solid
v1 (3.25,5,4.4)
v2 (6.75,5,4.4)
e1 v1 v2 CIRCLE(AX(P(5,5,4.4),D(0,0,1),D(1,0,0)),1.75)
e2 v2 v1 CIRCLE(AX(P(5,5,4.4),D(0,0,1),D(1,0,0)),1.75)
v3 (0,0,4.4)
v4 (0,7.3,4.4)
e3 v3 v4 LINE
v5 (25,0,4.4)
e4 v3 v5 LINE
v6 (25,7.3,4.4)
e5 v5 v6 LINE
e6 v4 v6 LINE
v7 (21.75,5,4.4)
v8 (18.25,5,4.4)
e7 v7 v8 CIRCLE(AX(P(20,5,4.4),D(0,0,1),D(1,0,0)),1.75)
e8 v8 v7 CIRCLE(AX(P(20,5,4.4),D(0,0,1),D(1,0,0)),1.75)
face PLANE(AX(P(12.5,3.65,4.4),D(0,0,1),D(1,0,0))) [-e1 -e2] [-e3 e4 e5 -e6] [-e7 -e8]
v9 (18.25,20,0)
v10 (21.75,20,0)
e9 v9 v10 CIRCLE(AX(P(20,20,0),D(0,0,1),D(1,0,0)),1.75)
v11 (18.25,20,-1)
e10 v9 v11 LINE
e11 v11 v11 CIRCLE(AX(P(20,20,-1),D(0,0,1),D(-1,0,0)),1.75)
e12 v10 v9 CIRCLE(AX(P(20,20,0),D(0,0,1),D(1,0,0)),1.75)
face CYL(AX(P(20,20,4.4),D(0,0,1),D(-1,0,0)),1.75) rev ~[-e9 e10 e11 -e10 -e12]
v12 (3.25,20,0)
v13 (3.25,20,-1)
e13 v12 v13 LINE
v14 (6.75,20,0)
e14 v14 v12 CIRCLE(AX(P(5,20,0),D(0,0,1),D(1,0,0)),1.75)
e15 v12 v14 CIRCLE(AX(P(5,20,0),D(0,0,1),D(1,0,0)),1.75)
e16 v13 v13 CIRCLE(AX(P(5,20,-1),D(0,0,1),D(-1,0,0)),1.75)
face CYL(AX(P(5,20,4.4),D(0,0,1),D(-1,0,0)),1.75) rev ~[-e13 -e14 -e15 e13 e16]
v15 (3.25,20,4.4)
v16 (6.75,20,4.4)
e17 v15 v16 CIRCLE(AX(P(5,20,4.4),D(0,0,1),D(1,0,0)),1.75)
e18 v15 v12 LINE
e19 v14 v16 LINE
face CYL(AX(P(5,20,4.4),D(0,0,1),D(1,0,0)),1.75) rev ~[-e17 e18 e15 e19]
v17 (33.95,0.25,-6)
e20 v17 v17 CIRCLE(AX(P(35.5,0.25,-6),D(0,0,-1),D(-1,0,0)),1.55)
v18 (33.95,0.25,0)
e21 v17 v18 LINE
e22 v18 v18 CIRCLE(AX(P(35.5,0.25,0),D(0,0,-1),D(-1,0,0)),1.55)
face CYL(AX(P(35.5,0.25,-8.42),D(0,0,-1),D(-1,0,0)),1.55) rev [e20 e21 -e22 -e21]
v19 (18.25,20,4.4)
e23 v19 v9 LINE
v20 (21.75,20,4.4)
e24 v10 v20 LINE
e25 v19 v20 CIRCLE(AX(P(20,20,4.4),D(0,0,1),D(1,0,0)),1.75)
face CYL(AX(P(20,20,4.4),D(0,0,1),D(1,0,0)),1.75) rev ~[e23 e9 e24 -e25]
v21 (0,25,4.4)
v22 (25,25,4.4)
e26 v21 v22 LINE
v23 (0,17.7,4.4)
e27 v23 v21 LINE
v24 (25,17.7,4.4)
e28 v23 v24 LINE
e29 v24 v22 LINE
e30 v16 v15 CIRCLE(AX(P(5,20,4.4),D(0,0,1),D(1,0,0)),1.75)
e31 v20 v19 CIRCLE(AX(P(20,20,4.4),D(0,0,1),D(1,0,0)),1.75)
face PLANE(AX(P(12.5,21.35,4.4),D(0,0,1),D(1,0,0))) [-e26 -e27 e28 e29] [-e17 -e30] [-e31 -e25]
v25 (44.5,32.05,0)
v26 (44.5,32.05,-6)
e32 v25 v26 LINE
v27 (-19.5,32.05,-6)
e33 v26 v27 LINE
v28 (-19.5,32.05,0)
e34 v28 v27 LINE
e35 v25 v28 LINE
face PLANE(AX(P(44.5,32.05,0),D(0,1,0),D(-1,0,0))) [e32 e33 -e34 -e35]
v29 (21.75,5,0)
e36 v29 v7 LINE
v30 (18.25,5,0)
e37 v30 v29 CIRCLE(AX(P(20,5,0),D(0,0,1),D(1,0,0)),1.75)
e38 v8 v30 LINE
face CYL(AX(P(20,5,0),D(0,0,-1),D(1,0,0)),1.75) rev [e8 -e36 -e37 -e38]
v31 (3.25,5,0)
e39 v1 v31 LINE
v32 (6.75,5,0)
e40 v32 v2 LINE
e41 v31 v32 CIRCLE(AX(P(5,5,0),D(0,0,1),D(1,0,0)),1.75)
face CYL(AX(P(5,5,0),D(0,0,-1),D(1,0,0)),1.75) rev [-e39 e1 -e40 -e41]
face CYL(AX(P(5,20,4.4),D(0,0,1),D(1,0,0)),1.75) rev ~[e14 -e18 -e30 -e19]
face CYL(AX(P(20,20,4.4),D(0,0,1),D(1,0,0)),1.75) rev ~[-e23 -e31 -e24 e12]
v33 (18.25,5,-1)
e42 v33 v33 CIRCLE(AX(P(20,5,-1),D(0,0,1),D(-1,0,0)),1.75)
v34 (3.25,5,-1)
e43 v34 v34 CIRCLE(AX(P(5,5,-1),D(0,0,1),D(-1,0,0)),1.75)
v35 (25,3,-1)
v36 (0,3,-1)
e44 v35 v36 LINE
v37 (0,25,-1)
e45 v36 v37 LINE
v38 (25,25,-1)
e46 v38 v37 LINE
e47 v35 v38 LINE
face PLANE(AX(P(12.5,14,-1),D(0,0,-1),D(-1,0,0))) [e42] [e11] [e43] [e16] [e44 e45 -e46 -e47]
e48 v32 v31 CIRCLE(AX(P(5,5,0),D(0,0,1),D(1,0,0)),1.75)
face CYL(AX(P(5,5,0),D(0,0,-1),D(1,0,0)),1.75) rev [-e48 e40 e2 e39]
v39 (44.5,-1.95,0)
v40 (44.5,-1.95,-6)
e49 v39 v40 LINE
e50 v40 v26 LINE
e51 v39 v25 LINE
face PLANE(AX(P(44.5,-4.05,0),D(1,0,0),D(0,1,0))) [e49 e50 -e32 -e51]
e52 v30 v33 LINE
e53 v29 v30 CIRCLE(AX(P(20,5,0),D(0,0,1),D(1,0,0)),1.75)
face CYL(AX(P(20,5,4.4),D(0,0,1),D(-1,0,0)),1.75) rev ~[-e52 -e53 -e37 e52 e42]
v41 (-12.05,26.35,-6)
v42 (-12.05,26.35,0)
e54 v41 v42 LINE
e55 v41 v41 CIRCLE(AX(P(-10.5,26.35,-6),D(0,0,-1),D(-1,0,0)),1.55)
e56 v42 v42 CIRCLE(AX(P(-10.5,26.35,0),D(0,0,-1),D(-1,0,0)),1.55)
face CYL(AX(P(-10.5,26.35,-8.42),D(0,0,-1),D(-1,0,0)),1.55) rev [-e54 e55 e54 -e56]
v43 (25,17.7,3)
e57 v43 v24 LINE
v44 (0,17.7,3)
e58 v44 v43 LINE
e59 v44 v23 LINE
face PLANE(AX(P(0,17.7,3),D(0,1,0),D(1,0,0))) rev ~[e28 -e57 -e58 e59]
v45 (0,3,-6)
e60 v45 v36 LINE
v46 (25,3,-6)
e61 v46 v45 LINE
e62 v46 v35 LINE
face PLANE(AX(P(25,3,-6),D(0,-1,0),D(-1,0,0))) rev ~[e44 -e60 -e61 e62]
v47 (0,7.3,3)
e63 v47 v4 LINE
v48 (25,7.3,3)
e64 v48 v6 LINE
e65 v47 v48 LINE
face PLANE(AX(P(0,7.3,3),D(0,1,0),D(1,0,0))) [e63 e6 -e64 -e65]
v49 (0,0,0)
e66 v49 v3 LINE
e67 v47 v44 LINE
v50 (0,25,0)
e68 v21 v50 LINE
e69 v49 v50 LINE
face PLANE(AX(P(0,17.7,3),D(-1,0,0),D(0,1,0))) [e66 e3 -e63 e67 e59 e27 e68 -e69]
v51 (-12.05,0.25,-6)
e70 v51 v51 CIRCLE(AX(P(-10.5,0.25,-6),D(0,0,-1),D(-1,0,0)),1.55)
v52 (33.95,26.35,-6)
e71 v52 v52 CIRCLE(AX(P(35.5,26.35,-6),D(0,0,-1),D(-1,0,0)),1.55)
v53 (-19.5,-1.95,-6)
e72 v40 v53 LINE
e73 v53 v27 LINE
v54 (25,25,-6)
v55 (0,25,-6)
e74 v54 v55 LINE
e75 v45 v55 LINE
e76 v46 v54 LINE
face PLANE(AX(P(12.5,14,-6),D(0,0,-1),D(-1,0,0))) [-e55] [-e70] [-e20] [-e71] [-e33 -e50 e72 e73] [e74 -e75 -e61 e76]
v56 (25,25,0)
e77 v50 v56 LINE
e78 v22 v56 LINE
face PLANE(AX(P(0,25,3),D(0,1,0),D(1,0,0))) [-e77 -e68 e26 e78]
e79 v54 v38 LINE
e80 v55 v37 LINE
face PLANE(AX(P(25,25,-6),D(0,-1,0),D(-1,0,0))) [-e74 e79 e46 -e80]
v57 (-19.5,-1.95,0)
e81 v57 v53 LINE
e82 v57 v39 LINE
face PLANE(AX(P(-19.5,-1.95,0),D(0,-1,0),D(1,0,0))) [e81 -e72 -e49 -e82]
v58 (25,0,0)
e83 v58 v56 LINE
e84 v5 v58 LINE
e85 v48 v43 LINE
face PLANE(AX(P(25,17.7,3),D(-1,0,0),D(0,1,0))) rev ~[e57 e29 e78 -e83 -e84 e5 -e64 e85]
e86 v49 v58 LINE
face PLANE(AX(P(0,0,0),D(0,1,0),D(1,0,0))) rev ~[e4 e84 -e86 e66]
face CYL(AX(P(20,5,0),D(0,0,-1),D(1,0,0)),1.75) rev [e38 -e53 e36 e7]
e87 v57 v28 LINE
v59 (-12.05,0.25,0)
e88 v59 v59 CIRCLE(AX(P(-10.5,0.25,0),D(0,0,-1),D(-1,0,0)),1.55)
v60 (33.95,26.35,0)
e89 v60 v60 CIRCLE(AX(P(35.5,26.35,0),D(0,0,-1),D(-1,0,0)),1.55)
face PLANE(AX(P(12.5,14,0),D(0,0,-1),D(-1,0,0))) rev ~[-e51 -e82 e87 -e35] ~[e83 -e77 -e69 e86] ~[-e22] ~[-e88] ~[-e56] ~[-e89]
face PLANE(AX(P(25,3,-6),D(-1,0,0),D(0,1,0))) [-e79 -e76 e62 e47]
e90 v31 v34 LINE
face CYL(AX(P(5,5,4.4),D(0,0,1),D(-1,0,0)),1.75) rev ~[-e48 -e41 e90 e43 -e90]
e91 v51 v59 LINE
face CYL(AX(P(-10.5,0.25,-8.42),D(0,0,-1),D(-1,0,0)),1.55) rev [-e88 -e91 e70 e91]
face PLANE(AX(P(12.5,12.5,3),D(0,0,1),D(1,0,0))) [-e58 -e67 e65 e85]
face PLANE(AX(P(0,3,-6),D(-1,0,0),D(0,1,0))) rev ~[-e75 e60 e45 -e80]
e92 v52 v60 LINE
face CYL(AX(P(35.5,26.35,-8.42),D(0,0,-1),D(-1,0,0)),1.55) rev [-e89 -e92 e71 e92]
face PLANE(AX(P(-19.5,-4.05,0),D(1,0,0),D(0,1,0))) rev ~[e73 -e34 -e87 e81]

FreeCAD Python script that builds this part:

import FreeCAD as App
import Part
import Sketcher

V = App.Vector

doc = App.newDocument("Part")
body = doc.addObject("PartDesign::Body", "Body")

# Sketch on XY plane
sketch1 = body.newObject("Sketcher::SketchObject", "Sketch")
sketch1.AttachmentSupport = (doc.getObject("XY_Plane"), [""])
sketch1.MapMode = "FlatFace"
sketch1.addGeometry(Part.LineSegment(V(0, 25, 0), V(0, 0, 0)), False)
sketch1.addGeometry(Part.LineSegment(V(0, 0, 0), V(25, 0, 0)), False)
sketch1.addGeometry(Part.LineSegment(V(25, 0, 0), V(25, 25, 0)), False)
sketch1.addGeometry(Part.LineSegment(V(25, 25, 0), V(0, 25, 0)), False)
sketch1.addGeometry(Part.Circle(V(5, 5, 0), V(0, 0, 1), 1.75), False)
sketch1.addGeometry(Part.Circle(V(20, 5, 0), V(0, 0, 1), 1.75), False)
sketch1.addGeometry(Part.Circle(V(5, 20, 0), V(0, 0, 1), 1.75), False)
sketch1.addGeometry(Part.Circle(V(20, 20, 0), V(0, 0, 1), 1.75), False)
sketch1.addConstraint(Sketcher.Constraint("Coincident", 0, 2, 1, 1))
sketch1.addConstraint(Sketcher.Constraint("Coincident", 1, 2, 2, 1))
sketch1.addConstraint(Sketcher.Constraint("Coincident", 2, 2, 3, 1))
sketch1.addConstraint(Sketcher.Constraint("Coincident", 3, 2, 0, 1))
sketch1.addConstraint(Sketcher.Constraint("Vertical", 0))
sketch1.addConstraint(Sketcher.Constraint("Horizontal", 1))
sketch1.addConstraint(Sketcher.Constraint("Vertical", 2))
sketch1.addConstraint(Sketcher.Constraint("Horizontal", 3))
sketch1.addConstraint(Sketcher.Constraint("Coincident", 0, 2, -1, 1))
sketch1.addConstraint(Sketcher.Constraint("Equal", 4, 5))
sketch1.addConstraint(Sketcher.Constraint("Equal", 5, 6))
sketch1.addConstraint(Sketcher.Constraint("Equal", 6, 7))
sketch1.addConstraint(Sketcher.Constraint("Horizontal", 4, 3, 5, 3))
sketch1.addConstraint(Sketcher.Constraint("Horizontal", 6, 3, 7, 3))
sketch1.addConstraint(Sketcher.Constraint("Vertical", 4, 3, 6, 3))
sketch1.addConstraint(Sketcher.Constraint("Vertical", 5, 3, 7, 3))
sketch1.addConstraint(Sketcher.Constraint("Equal", 3, 0))
sketch1.addConstraint(Sketcher.Constraint("Diameter", 4, 3.5))
sketch1.addConstraint(Sketcher.Constraint("DistanceX", 1, 1, 1, 2, 25.0))
sketch1.addConstraint(Sketcher.Constraint("DistanceX", -1, 1, 4, 3, 5.0))
sketch1.addConstraint(Sketcher.Constraint("DistanceY", -1, 1, 4, 3, 5.0))
sketch1.addConstraint(Sketcher.Constraint("DistanceX", -1, 1, 5, 3, 20.0))
sketch1.addConstraint(Sketcher.Constraint("DistanceY", -1, 1, 6, 3, 20.0))
pad1 = body.newObject("PartDesign::Pad", "Pad")
pad1.Profile = sketch1
pad1.Length = 3

# Sketch on XY plane
sketch2 = body.newObject("Sketcher::SketchObject", "Sketch001")
sketch2.AttachmentSupport = (doc.getObject("XY_Plane"), [""])
sketch2.MapMode = "FlatFace"
sketch2.AttachmentOffset = App.Placement(V(0, 0, 3), App.Rotation())
sketch2.addGeometry(Part.LineSegment(V(0, 25, 0), V(0, 17.7, 0)), False)
sketch2.addGeometry(Part.LineSegment(V(0, 17.7, 0), V(25, 17.7, 0)), False)
sketch2.addGeometry(Part.LineSegment(V(25, 17.7, 0), V(25, 25, 0)), False)
sketch2.addGeometry(Part.LineSegment(V(25, 25, 0), V(0, 25, 0)), False)
sketch2.addGeometry(Part.LineSegment(V(0, 7.3, 0), V(0, 0, 0)), False)
sketch2.addGeometry(Part.LineSegment(V(0, 0, 0), V(25, 0, 0)), False)
sketch2.addGeometry(Part.LineSegment(V(25, 0, 0), V(25, 7.3, 0)), False)
sketch2.addGeometry(Part.LineSegment(V(25, 7.3, 0), V(0, 7.3, 0)), False)
sketch2.addConstraint(Sketcher.Constraint("Coincident", 0, 2, 1, 1))
sketch2.addConstraint(Sketcher.Constraint("Coincident", 1, 2, 2, 1))
sketch2.addConstraint(Sketcher.Constraint("Coincident", 2, 2, 3, 1))
sketch2.addConstraint(Sketcher.Constraint("Coincident", 3, 2, 0, 1))
sketch2.addConstraint(Sketcher.Constraint("Coincident", 4, 2, 5, 1))
sketch2.addConstraint(Sketcher.Constraint("Coincident", 5, 2, 6, 1))
sketch2.addConstraint(Sketcher.Constraint("Coincident", 6, 2, 7, 1))
sketch2.addConstraint(Sketcher.Constraint("Coincident", 7, 2, 4, 1))
sketch2.addConstraint(Sketcher.Constraint("Vertical", 0))
sketch2.addConstraint(Sketcher.Constraint("Horizontal", 1))
sketch2.addConstraint(Sketcher.Constraint("Vertical", 2))
sketch2.addConstraint(Sketcher.Constraint("Horizontal", 3))
sketch2.addConstraint(Sketcher.Constraint("Vertical", 4))
sketch2.addConstraint(Sketcher.Constraint("Horizontal", 5))
sketch2.addConstraint(Sketcher.Constraint("Vertical", 6))
sketch2.addConstraint(Sketcher.Constraint("Horizontal", 7))
sketch2.addConstraint(Sketcher.Constraint("Coincident", 4, 2, -1, 1))
sketch2.addConstraint(Sketcher.Constraint("PointOnObject", 0, 2, -2))
sketch2.addConstraint(Sketcher.Constraint("Vertical", 2, 2, 5, 2))
sketch2.addConstraint(Sketcher.Constraint("Equal", 2, 4))
sketch2.addConstraint(Sketcher.Constraint("DistanceX", 1, 1, 1, 2, 25.0))
sketch2.addConstraint(Sketcher.Constraint("DistanceY", 0, 2, 0, 1, 7.3))
sketch2.addConstraint(Sketcher.Constraint("DistanceY", -1, 1, 2, 2, 25.0))
pad2 = body.newObject("PartDesign::Pad", "Pad001")
pad2.Profile = sketch2
pad2.Length = 1.4

# Sketch on XY plane
sketch3 = body.newObject("Sketcher::SketchObject", "Sketch002")
sketch3.AttachmentSupport = (doc.getObject("XY_Plane"), [""])
sketch3.MapMode = "FlatFace"
sketch3.AttachmentOffset = App.Placement(V(0, 0, 4.4), App.Rotation())
sketch3.addGeometry(Part.Circle(V(5, 5, 0), V(0, 0, 1), 1.75), False)
sketch3.addGeometry(Part.Circle(V(20, 5, 0), V(0, 0, 1), 1.75), False)
sketch3.addGeometry(Part.Circle(V(20, 20, 0), V(0, 0, 1), 1.75), False)
sketch3.addGeometry(Part.Circle(V(5, 20, 0), V(0, 0, 1), 1.75), False)
sketch3.addConstraint(Sketcher.Constraint("Equal", 0, 1))
sketch3.addConstraint(Sketcher.Constraint("Equal", 1, 2))
sketch3.addConstraint(Sketcher.Constraint("Equal", 2, 3))
sketch3.addConstraint(Sketcher.Constraint("Horizontal", 0, 3, 1, 3))
sketch3.addConstraint(Sketcher.Constraint("Horizontal", 2, 3, 3, 3))
sketch3.addConstraint(Sketcher.Constraint("Vertical", 1, 3, 2, 3))
sketch3.addConstraint(Sketcher.Constraint("Vertical", 0, 3, 3, 3))
sketch3.addConstraint(Sketcher.Constraint("Diameter", 0, 3.5))
sketch3.addConstraint(Sketcher.Constraint("DistanceX", -1, 1, 0, 3, 5.0))
sketch3.addConstraint(Sketcher.Constraint("DistanceY", -1, 1, 0, 3, 5.0))
sketch3.addConstraint(Sketcher.Constraint("DistanceX", -1, 1, 1, 3, 20.0))
sketch3.addConstraint(Sketcher.Constraint("DistanceY", -1, 1, 2, 3, 20.0))
pocket1 = body.newObject("PartDesign::Pocket", "Pocket")
pocket1.Profile = sketch3
pocket1.Type = "ThroughAll"

# Sketch on XY plane
sketch4 = body.newObject("Sketcher::SketchObject", "Sketch003")
sketch4.AttachmentSupport = (doc.getObject("XY_Plane"), [""])
sketch4.MapMode = "FlatFace"
sketch4.addGeometry(Part.LineSegment(V(44.5, 32.05, 0), V(44.5, -4.05, 0)), False)
sketch4.addGeometry(Part.LineSegment(V(44.5, -4.05, 0), V(-19.5, -4.05, 0)), False)
sketch4.addGeometry(Part.LineSegment(V(-19.5, -4.05, 0), V(-19.5, 32.05, 0)), False)
sketch4.addGeometry(Part.LineSegment(V(-19.5, 32.05, 0), V(44.5, 32.05, 0)), False)
sketch4.addConstraint(Sketcher.Constraint("Coincident", 0, 2, 1, 1))
sketch4.addConstraint(Sketcher.Constraint("Coincident", 1, 2, 2, 1))
sketch4.addConstraint(Sketcher.Constraint("Coincident", 2, 2, 3, 1))
sketch4.addConstraint(Sketcher.Constraint("Coincident", 3, 2, 0, 1))
sketch4.addConstraint(Sketcher.Constraint("Vertical", 0))
sketch4.addConstraint(Sketcher.Constraint("Horizontal", 1))
sketch4.addConstraint(Sketcher.Constraint("Vertical", 2))
sketch4.addConstraint(Sketcher.Constraint("Horizontal", 3))
sketch4.addConstraint(Sketcher.Constraint("DistanceX", 1, 2, 1, 1, 64.0))
sketch4.addConstraint(Sketcher.Constraint("DistanceY", 0, 2, 0, 1, 36.1))
sketch4.addConstraint(Sketcher.Constraint("DistanceX", -1, 1, 0, 2, 44.5))
sketch4.addConstraint(Sketcher.Constraint("DistanceY", 0, 2, -1, 1, 4.05))
pad3 = body.newObject("PartDesign::Pad", "Pad002")
pad3.Profile = sketch4
pad3.Length = 6
pad3.Reversed = True

# Sketch on XY plane
sketch5 = body.newObject("Sketcher::SketchObject", "Sketch004")
sketch5.AttachmentSupport = (doc.getObject("XY_Plane"), [""])
sketch5.MapMode = "FlatFace"
sketch5.AttachmentOffset = App.Placement(V(0, 0, -6), App.Rotation())
sketch5.addGeometry(Part.LineSegment(V(25, 25, 0), V(25, 3, 0)), False)
sketch5.addGeometry(Part.LineSegment(V(25, 3, 0), V(0, 3, 0)), False)
sketch5.addGeometry(Part.LineSegment(V(0, 3, 0), V(0, 25, 0)), False)
sketch5.addGeometry(Part.LineSegment(V(0, 25, 0), V(25, 25, 0)), False)
sketch5.addConstraint(Sketcher.Constraint("Coincident", 0, 2, 1, 1))
sketch5.addConstraint(Sketcher.Constraint("Coincident", 1, 2, 2, 1))
sketch5.addConstraint(Sketcher.Constraint("Coincident", 2, 2, 3, 1))
sketch5.addConstraint(Sketcher.Constraint("Coincident", 3, 2, 0, 1))
sketch5.addConstraint(Sketcher.Constraint("Vertical", 0))
sketch5.addConstraint(Sketcher.Constraint("Horizontal", 1))
sketch5.addConstraint(Sketcher.Constraint("Vertical", 2))
sketch5.addConstraint(Sketcher.Constraint("Horizontal", 3))
sketch5.addConstraint(Sketcher.Constraint("PointOnObject", 1, 2, -2))
sketch5.addConstraint(Sketcher.Constraint("DistanceX", 1, 2, 1, 1, 25.0))
sketch5.addConstraint(Sketcher.Constraint("DistanceY", 0, 2, 0, 1, 22.0))
sketch5.addConstraint(Sketcher.Constraint("DistanceY", -1, 1, 0, 2, 3.0))
pocket2 = body.newObject("PartDesign::Pocket", "Pocket001")
pocket2.Profile = sketch5
pocket2.Length = 5
pocket2.Reversed = True

# Sketch on XY plane
sketch6 = body.newObject("Sketcher::SketchObject", "Sketch005")
sketch6.AttachmentSupport = (doc.getObject("XY_Plane"), [""])
sketch6.MapMode = "FlatFace"
sketch6.AttachmentOffset = App.Placement(V(0, 0, 4.4), App.Rotation())
sketch6.addGeometry(Part.Circle(V(5, 5, 0), V(0, 0, 1), 1.75), False)
sketch6.addGeometry(Part.Circle(V(20, 5, 0), V(0, 0, 1), 1.75), False)
sketch6.addGeometry(Part.Circle(V(20, 20, 0), V(0, 0, 1), 1.75), False)
sketch6.addGeometry(Part.Circle(V(5, 20, 0), V(0, 0, 1), 1.75), False)
sketch6.addConstraint(Sketcher.Constraint("Equal", 0, 1))
sketch6.addConstraint(Sketcher.Constraint("Equal", 1, 2))
sketch6.addConstraint(Sketcher.Constraint("Equal", 2, 3))
sketch6.addConstraint(Sketcher.Constraint("Horizontal", 0, 3, 1, 3))
sketch6.addConstraint(Sketcher.Constraint("Horizontal", 2, 3, 3, 3))
sketch6.addConstraint(Sketcher.Constraint("Vertical", 1, 3, 2, 3))
sketch6.addConstraint(Sketcher.Constraint("Vertical", 0, 3, 3, 3))
sketch6.addConstraint(Sketcher.Constraint("Diameter", 0, 3.5))
sketch6.addConstraint(Sketcher.Constraint("DistanceX", -1, 1, 0, 3, 5.0))
sketch6.addConstraint(Sketcher.Constraint("DistanceY", -1, 1, 0, 3, 5.0))
sketch6.addConstraint(Sketcher.Constraint("DistanceX", -1, 1, 1, 3, 20.0))
sketch6.addConstraint(Sketcher.Constraint("DistanceY", -1, 1, 2, 3, 20.0))
pocket3 = body.newObject("PartDesign::Pocket", "Pocket002")
pocket3.Profile = sketch6
pocket3.Type = "ThroughAll"

# Sketch on XY plane
sketch7 = body.newObject("Sketcher::SketchObject", "Sketch006")
sketch7.AttachmentSupport = (doc.getObject("XY_Plane"), [""])
sketch7.MapMode = "FlatFace"
sketch7.addGeometry(Part.LineSegment(V(-19.5, -1.95, 0), V(-19.5, -4.05, 0)), False)
sketch7.addGeometry(Part.LineSegment(V(-19.5, -4.05, 0), V(44.5, -4.05, 0)), False)
sketch7.addGeometry(Part.LineSegment(V(44.5, -4.05, 0), V(44.5, -1.95, 0)), False)
sketch7.addGeometry(Part.LineSegment(V(44.5, -1.95, 0), V(-19.5, -1.95, 0)), False)
sketch7.addConstraint(Sketcher.Constraint("Coincident", 0, 2, 1, 1))
sketch7.addConstraint(Sketcher.Constraint("Coincident", 1, 2, 2, 1))
sketch7.addConstraint(Sketcher.Constraint("Coincident", 2, 2, 3, 1))
sketch7.addConstraint(Sketcher.Constraint("Coincident", 3, 2, 0, 1))
sketch7.addConstraint(Sketcher.Constraint("Vertical", 0))
sketch7.addConstraint(Sketcher.Constraint("Horizontal", 1))
sketch7.addConstraint(Sketcher.Constraint("Vertical", 2))
sketch7.addConstraint(Sketcher.Constraint("Horizontal", 3))
sketch7.addConstraint(Sketcher.Constraint("DistanceX", 1, 1, 1, 2, 64.0))
sketch7.addConstraint(Sketcher.Constraint("DistanceY", 0, 2, 0, 1, 2.1))
sketch7.addConstraint(Sketcher.Constraint("DistanceX", 0, 2, -1, 1, 19.5))
sketch7.addConstraint(Sketcher.Constraint("DistanceY", 0, 2, -1, 1, 4.05))
pocket4 = body.newObject("PartDesign::Pocket", "Pocket003")
pocket4.Profile = sketch7
pocket4.Length = 10

# Sketch on XY plane
sketch8 = body.newObject("Sketcher::SketchObject", "Sketch007")
sketch8.AttachmentSupport = (doc.getObject("XY_Plane"), [""])
sketch8.MapMode = "FlatFace"
sketch8.AttachmentOffset = App.Placement(V(0, 0, -8.42), App.Rotation())
sketch8.addGeometry(Part.Circle(V(-10.5, 26.35, 0), V(0, 0, 1), 1.55), False)
sketch8.addGeometry(Part.Circle(V(35.5, 26.35, 0), V(0, 0, 1), 1.55), False)
sketch8.addGeometry(Part.Circle(V(35.5, 0.25, 0), V(0, 0, 1), 1.55), False)
sketch8.addGeometry(Part.Circle(V(-10.5, 0.25, 0), V(0, 0, 1), 1.55), False)
sketch8.addConstraint(Sketcher.Constraint("Equal", 0, 1))
sketch8.addConstraint(Sketcher.Constraint("Equal", 1, 2))
sketch8.addConstraint(Sketcher.Constraint("Equal", 2, 3))
sketch8.addConstraint(Sketcher.Constraint("Horizontal", 0, 3, 1, 3))
sketch8.addConstraint(Sketcher.Constraint("Horizontal", 2, 3, 3, 3))
sketch8.addConstraint(Sketcher.Constraint("Vertical", 1, 3, 2, 3))
sketch8.addConstraint(Sketcher.Constraint("Vertical", 0, 3, 3, 3))
sketch8.addConstraint(Sketcher.Constraint("Diameter", 0, 3.1))
sketch8.addConstraint(Sketcher.Constraint("DistanceX", 0, 3, 1, 3, 46.0))
sketch8.addConstraint(Sketcher.Constraint("DistanceX", 0, 3, -1, 1, 10.5))
sketch8.addConstraint(Sketcher.Constraint("DistanceY", 2, 3, 1, 3, 26.1))
sketch8.addConstraint(Sketcher.Constraint("DistanceY", -1, 1, 0, 3, 26.35))
pocket5 = body.newObject("PartDesign::Pocket", "Pocket004")
pocket5.Profile = sketch8
pocket5.Type = "ThroughAll"
pocket5.Reversed = True

doc.recompute()
